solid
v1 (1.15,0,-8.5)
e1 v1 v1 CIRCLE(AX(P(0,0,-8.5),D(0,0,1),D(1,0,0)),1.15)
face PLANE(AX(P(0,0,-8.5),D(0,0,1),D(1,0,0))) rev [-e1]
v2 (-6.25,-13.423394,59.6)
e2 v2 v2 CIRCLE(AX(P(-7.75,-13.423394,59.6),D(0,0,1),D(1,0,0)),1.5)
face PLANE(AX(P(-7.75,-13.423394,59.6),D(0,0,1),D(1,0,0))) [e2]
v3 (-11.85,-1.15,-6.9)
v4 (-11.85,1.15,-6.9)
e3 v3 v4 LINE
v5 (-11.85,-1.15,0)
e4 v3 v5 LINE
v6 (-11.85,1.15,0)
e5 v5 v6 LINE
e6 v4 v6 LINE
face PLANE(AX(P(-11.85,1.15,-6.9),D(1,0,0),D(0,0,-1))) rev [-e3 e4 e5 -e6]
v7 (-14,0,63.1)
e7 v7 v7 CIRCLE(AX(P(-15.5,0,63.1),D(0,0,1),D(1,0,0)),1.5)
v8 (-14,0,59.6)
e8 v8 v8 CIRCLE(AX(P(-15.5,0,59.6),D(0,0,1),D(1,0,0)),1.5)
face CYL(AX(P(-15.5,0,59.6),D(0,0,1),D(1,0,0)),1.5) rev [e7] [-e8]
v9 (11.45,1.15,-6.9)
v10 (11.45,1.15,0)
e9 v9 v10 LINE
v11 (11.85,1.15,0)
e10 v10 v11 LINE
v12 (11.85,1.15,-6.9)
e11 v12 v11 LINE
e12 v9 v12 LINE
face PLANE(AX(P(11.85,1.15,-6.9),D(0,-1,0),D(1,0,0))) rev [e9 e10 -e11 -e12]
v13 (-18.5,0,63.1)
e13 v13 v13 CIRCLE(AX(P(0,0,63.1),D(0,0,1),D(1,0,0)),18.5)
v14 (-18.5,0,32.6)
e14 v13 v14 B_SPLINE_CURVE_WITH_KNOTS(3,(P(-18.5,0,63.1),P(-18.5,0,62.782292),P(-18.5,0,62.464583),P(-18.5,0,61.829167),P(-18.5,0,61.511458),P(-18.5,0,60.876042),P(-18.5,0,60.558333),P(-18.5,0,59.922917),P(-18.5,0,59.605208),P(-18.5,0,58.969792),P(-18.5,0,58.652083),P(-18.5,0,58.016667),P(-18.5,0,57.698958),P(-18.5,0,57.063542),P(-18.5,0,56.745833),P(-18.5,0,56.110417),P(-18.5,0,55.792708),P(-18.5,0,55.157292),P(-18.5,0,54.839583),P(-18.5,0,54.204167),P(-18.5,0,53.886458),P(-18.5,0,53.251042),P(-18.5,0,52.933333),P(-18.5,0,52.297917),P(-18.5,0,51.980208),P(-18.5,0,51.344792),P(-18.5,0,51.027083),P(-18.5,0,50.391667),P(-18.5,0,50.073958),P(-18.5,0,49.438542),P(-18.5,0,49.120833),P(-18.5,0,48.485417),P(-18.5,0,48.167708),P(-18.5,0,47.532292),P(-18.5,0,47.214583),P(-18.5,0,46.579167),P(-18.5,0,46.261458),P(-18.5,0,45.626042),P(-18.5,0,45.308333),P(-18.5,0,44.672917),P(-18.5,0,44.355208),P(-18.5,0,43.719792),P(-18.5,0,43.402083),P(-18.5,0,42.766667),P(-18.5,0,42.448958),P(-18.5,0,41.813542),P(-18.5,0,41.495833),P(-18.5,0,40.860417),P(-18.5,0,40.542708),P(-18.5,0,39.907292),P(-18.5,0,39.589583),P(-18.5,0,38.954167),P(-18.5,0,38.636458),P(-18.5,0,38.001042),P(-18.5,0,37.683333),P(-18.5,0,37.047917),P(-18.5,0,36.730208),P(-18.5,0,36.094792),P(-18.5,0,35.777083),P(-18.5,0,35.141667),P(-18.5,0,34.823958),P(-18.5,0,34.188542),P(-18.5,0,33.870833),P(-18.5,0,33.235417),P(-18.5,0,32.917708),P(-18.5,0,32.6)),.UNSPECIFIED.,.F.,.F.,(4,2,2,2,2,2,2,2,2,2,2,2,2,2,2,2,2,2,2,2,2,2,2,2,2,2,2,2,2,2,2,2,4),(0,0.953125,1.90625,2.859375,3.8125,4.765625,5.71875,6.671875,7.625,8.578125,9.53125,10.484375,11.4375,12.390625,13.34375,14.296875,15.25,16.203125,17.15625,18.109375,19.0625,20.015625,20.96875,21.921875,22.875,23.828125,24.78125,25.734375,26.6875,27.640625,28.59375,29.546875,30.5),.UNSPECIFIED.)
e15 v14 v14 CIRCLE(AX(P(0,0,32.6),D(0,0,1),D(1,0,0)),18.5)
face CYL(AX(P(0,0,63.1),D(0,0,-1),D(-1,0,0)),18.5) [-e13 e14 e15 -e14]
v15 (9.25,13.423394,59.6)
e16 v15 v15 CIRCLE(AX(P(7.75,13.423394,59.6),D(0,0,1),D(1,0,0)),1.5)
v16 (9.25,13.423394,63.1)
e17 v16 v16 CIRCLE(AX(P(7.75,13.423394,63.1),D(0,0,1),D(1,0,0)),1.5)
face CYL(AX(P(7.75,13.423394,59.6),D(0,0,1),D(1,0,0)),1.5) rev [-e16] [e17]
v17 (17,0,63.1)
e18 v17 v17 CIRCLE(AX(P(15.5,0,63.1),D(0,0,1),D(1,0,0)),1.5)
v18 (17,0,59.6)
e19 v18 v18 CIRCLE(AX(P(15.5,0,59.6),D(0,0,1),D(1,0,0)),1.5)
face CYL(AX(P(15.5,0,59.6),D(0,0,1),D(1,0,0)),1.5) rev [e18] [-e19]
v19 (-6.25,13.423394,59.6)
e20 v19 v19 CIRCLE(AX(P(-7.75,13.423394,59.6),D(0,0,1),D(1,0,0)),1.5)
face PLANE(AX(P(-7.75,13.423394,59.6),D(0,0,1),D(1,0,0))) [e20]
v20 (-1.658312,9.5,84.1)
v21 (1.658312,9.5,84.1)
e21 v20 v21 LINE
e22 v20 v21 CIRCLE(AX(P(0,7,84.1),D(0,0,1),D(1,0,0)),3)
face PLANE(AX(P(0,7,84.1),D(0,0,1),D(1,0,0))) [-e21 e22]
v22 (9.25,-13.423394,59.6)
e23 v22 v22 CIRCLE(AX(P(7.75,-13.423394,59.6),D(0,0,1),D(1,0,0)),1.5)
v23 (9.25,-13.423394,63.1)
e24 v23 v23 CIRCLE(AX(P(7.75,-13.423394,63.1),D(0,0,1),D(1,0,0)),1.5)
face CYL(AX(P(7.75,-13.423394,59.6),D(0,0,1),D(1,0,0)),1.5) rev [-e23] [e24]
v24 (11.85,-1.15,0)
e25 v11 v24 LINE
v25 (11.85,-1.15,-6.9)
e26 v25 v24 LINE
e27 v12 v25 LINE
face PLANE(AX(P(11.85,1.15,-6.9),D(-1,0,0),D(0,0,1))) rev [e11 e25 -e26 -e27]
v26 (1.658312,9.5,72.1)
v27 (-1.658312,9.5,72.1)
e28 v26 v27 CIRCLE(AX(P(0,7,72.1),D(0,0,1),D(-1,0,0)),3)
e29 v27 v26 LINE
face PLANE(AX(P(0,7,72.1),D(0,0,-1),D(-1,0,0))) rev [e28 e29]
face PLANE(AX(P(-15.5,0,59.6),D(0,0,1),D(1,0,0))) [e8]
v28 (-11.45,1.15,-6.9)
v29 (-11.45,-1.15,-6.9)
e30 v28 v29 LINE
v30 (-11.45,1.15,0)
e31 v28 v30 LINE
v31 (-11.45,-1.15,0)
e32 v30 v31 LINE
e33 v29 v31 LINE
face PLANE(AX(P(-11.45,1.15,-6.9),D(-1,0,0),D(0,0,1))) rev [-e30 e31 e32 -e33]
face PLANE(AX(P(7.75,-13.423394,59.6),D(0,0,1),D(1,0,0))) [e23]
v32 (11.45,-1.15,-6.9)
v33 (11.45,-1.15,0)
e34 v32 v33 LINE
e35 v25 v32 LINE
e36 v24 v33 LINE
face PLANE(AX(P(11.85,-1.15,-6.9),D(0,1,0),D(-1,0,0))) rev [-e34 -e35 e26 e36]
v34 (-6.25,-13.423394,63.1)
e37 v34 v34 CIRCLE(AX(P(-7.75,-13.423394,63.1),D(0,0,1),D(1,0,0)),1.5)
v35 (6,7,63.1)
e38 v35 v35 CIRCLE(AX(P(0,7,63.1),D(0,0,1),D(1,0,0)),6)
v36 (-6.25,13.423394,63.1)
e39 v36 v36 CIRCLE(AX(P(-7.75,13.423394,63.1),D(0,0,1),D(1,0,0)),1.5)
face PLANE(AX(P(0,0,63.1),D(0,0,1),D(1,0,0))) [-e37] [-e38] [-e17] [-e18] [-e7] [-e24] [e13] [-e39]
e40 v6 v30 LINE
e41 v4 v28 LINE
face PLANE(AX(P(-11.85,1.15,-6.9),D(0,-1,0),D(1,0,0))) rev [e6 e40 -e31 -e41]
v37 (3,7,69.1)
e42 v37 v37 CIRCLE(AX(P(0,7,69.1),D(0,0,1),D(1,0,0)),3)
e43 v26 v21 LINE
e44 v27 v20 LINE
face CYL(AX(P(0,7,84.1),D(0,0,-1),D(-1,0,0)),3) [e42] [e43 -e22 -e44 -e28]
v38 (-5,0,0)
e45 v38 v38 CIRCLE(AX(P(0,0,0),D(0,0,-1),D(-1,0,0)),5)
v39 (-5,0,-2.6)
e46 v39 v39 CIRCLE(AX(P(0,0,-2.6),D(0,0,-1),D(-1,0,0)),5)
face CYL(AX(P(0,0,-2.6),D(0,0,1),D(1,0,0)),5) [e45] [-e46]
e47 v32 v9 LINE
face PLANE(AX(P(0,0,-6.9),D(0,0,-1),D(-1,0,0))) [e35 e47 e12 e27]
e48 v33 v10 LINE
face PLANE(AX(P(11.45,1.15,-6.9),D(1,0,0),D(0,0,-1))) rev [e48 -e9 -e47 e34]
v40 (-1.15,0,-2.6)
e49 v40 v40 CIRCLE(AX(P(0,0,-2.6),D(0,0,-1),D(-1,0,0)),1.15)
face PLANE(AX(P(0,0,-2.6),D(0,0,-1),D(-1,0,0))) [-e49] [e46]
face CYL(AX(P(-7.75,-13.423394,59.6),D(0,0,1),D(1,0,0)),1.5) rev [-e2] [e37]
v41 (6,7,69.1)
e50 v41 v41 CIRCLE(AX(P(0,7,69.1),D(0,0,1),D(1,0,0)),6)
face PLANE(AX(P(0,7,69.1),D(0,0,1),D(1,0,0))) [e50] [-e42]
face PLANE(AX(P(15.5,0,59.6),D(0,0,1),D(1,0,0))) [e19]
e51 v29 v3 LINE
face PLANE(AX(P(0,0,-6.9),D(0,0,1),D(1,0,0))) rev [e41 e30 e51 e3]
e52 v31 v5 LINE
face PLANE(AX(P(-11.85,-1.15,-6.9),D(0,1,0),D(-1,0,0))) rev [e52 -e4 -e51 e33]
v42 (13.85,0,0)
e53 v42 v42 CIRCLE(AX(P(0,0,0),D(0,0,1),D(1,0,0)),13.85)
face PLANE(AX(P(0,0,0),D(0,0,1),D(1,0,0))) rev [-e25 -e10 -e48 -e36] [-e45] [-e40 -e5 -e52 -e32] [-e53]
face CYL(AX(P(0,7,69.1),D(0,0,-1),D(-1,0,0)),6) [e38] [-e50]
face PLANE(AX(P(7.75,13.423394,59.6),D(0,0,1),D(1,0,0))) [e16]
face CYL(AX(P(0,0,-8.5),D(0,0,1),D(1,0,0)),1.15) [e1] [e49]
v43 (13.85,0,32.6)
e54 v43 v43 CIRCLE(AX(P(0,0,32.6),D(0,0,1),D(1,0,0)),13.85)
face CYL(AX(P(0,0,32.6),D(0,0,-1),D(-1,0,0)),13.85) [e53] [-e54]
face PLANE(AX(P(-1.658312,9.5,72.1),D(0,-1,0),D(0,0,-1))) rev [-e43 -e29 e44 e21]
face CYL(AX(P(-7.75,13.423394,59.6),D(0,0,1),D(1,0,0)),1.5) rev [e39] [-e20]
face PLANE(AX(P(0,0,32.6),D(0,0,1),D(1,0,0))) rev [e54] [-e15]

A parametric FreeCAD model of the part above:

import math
import FreeCAD as App
import Part
import Sketcher
from FreeCAD import Vector


def add_polygon(sketch, points):
    """Adds a closed chain of lines whose ends are joined by coincident constraints."""
    first, n = sketch.GeometryCount, len(points)
    for a, b in zip(points, points[1:] + points[:1]):
        sketch.addGeometry(Part.LineSegment(App.Vector(*a, 0), App.Vector(*b, 0)), False)
    for i in range(n):
        sketch.addConstraint(Sketcher.Constraint("Coincident", first + i, 2, first + (i + 1) % n, 1))

doc = App.newDocument("Part")
body = doc.addObject("PartDesign::Body", "Body")

sketch1 = doc.addObject("Sketcher::SketchObject", "Sketch")
body.addObject(sketch1)
sketch1.AttachmentSupport = (doc.XY_Plane, [""])
sketch1.MapMode = "FlatFace"
sketch1.addGeometry(Part.Circle(Vector(0, 0, 0), Vector(0, 0, 1), 14), False)
sketch1.addConstraint([
    Sketcher.Constraint("Coincident", 0, 3, -1, 1),
    Sketcher.Constraint("Diameter", 0, 27.7),
])
pad1 = doc.addObject("PartDesign::Pad", "Pad")
body.addObject(pad1)
pad1.Profile = sketch1
pad1.Length = 32.6

sketch2 = doc.addObject("Sketcher::SketchObject", "Sketch001")
body.addObject(sketch2)
sketch2.AttachmentSupport = (doc.XY_Plane, [""])
sketch2.MapMode = "FlatFace"
sketch2.AttachmentOffset = App.Placement(Vector(0, 0, 32.6), App.Rotation())
sketch2.addGeometry(Part.Circle(Vector(0, 0, 0), Vector(0, 0, 1), 18), False)
sketch2.addConstraint([
    Sketcher.Constraint("Coincident", 0, 3, -1, 1),
    Sketcher.Constraint("Diameter", 0, 37.0),
])
pad2 = doc.addObject("PartDesign::Pad", "Pad001")
body.addObject(pad2)
pad2.Profile = sketch2
pad2.Length = 30.5

sketch3 = doc.addObject("Sketcher::SketchObject", "Sketch002")
body.addObject(sketch3)
sketch3.AttachmentSupport = (doc.XY_Plane, [""])
sketch3.MapMode = "FlatFace"
sketch3.AttachmentOffset = App.Placement(Vector(0, 0, 63.1), App.Rotation())
sketch3.addGeometry(Part.Circle(Vector(0, 7, 0), Vector(0, 0, 1), 6), False)
sketch3.addConstraint([
    Sketcher.Constraint("PointOnObject", 0, 3, -2),
    Sketcher.Constraint("Diameter", 0, 12.0),
    Sketcher.Constraint("DistanceY", -1, 1, 0, 3, 7.0),
])
pad3 = doc.addObject("PartDesign::Pad", "Pad002")
body.addObject(pad3)
pad3.Profile = sketch3
pad3.Length = 6

sketch4 = doc.addObject("Sketcher::SketchObject", "Sketch003")
body.addObject(sketch4)
sketch4.AttachmentSupport = (doc.XY_Plane, [""])
sketch4.MapMode = "FlatFace"
sketch4.AttachmentOffset = App.Placement(Vector(0, 0, 69.1), App.Rotation())
sketch4.addGeometry(Part.Circle(Vector(0, 7, 0), Vector(0, 0, 1), 3), False)
sketch4.addConstraint([
    Sketcher.Constraint("PointOnObject", 0, 3, -2),
    Sketcher.Constraint("Diameter", 0, 6.0),
    Sketcher.Constraint("DistanceY", -1, 1, 0, 3, 7.0),
])
pad4 = doc.addObject("PartDesign::Pad", "Pad003")
body.addObject(pad4)
pad4.Profile = sketch4
pad4.Length = 15

sketch5 = doc.addObject("Sketcher::SketchObject", "Sketch004")
body.addObject(sketch5)
sketch5.AttachmentSupport = (doc.XY_Plane, [""])
sketch5.MapMode = "FlatFace"
sketch5.AttachmentOffset = App.Placement(Vector(0, 0, 72.1), App.Rotation())
sketch5.addGeometry([
    Part.LineSegment(Vector(-1.7, 9.5, 0), Vector(1.7, 9.5, 0)),
    Part.ArcOfCircle(Part.Circle(Vector(0, 7, 0), Vector(0, 0, 1), 3), math.radians(56), math.radians(124)),
], False)
sketch5.addConstraint([
    Sketcher.Constraint("Coincident", 0, 1, 1, 2),
    Sketcher.Constraint("Coincident", 1, 1, 0, 2),
    Sketcher.Constraint("Horizontal", 0),
    Sketcher.Constraint("PointOnObject", 1, 3, -2),
    Sketcher.Constraint("Radius", 1, 3.0),
    Sketcher.Constraint("DistanceY", -1, 1, 1, 3, 7.0),
    Sketcher.Constraint("DistanceY", -1, 1, 0, 1, 9.5),
])
pocket1 = doc.addObject("PartDesign::Pocket", "Pocket")
body.addObject(pocket1)
pocket1.Profile = sketch5
pocket1.Length = 12
pocket1.Reversed = True

sketch6 = doc.addObject("Sketcher::SketchObject", "Sketch005")
body.addObject(sketch6)
sketch6.AttachmentSupport = (doc.XY_Plane, [""])
sketch6.MapMode = "FlatFace"
sketch6.AttachmentOffset = App.Placement(Vector(0, 0, 63.1), App.Rotation())
sketch6.addGeometry([
    Part.Circle(Vector(-15.5, 0, 0), Vector(0, 0, 1), 1.5),
    Part.Circle(Vector(-7.8, 13.4, 0), Vector(0, 0, 1), 1.5),
    Part.Circle(Vector(7.8, 13.4, 0), Vector(0, 0, 1), 1.5),
    Part.Circle(Vector(15.5, 0, 0), Vector(0, 0, 1), 1.5),
    Part.Circle(Vector(7.8, -13.4, 0), Vector(0, 0, 1), 1.5),
    Part.Circle(Vector(-7.8, -13.4, 0), Vector(0, 0, 1), 1.5),
], False)
sketch6.addConstraint([
    Sketcher.Constraint("Equal", 0, 1),
    Sketcher.Constraint("Equal", 1, 2),
    Sketcher.Constraint("Equal", 2, 3),
    Sketcher.Constraint("Equal", 3, 4),
    Sketcher.Constraint("Equal", 4, 5),
    Sketcher.Constraint("Symmetric", 0, 3, 3, 3, -1, 1),
    Sketcher.Constraint("Symmetric", 1, 3, 4, 3, -1, 1),
    Sketcher.Constraint("Symmetric", 2, 3, 5, 3, -1, 1),
    Sketcher.Constraint("Symmetric", 1, 3, 2, 3, -2),
    Sketcher.Constraint("PointOnObject", 0, 3, -1),
    Sketcher.Constraint("Diameter", 0, 3.0),
    Sketcher.Constraint("DistanceX", 0, 3, 3, 3, 31.0),
    Sketcher.Constraint("DistanceX", 1, 3, 2, 3, 15.5),
    Sketcher.Constraint("DistanceY", -1, 1, 1, 3, 13.423394),
])
pocket2 = doc.addObject("PartDesign::Pocket", "Pocket001")
body.addObject(pocket2)
pocket2.Profile = sketch6
pocket2.Length = 3.5

sketch7 = doc.addObject("Sketcher::SketchObject", "Sketch006")
body.addObject(sketch7)
sketch7.AttachmentSupport = (doc.XY_Plane, [""])
sketch7.MapMode = "FlatFace"
sketch7.addGeometry(Part.Circle(Vector(0, 0, 0), Vector(0, 0, 1), 5), False)
sketch7.addConstraint([
    Sketcher.Constraint("Coincident", 0, 3, -1, 1),
    Sketcher.Constraint("Diameter", 0, 10.0),
])
pad5 = doc.addObject("PartDesign::Pad", "Pad004")
body.addObject(pad5)
pad5.Profile = sketch7
pad5.Length = 2.6
pad5.Reversed = True

sketch8 = doc.addObject("Sketcher::SketchObject", "Sketch007")
body.addObject(sketch8)
sketch8.AttachmentSupport = (doc.XY_Plane, [""])
sketch8.MapMode = "FlatFace"
sketch8.addGeometry(Part.Circle(Vector(0, 0, 0), Vector(0, 0, 1), 1.1), False)
sketch8.addConstraint([
    Sketcher.Constraint("Coincident", 0, 3, -1, 1),
    Sketcher.Constraint("Diameter", 0, 2.3),
])
pad6 = doc.addObject("PartDesign::Pad", "Pad005")
body.addObject(pad6)
pad6.Profile = sketch8
pad6.Length = 8.5
pad6.Reversed = True

sketch9 = doc.addObject("Sketcher::SketchObject", "Sketch008")
body.addObject(sketch9)
sketch9.AttachmentSupport = (doc.XY_Plane, [""])
sketch9.MapMode = "FlatFace"
add_polygon(sketch9, [(-11.45, 1.15), (-11.45, -1.15), (-11.85, -1.15), (-11.85, 1.15)])
add_polygon(sketch9, [(11.85, 1.15), (11.85, -1.15), (11.45, -1.15), (11.45, 1.15)])
sketch9.addConstraint([
    Sketcher.Constraint("Vertical", 0),
    Sketcher.Constraint("Horizontal", 1),
    Sketcher.Constraint("Vertical", 2),
    Sketcher.Constraint("Horizontal", 3),
    Sketcher.Constraint("Vertical", 4),
    Sketcher.Constraint("Horizontal", 5),
    Sketcher.Constraint("Vertical", 6),
    Sketcher.Constraint("Horizontal", 7),
    Sketcher.Constraint("Symmetric", 2, 2, 4, 2, -1, 1),
    Sketcher.Constraint("Symmetric", 0, 2, 6, 2, -1, 1),
    Sketcher.Constraint("Horizontal", 1, 2, 4, 2),
    Sketcher.Constraint("DistanceX", 1, 2, 1, 1, 0.4),
    Sketcher.Constraint("DistanceY", 0, 2, 0, 1, 2.3),
    Sketcher.Constraint("DistanceX", 0, 2, 4, 2, 23.3),
])
pad7 = doc.addObject("PartDesign::Pad", "Pad006")
body.addObject(pad7)
pad7.Profile = sketch9
pad7.Length = 6.9
pad7.Reversed = True

doc.recompute()
